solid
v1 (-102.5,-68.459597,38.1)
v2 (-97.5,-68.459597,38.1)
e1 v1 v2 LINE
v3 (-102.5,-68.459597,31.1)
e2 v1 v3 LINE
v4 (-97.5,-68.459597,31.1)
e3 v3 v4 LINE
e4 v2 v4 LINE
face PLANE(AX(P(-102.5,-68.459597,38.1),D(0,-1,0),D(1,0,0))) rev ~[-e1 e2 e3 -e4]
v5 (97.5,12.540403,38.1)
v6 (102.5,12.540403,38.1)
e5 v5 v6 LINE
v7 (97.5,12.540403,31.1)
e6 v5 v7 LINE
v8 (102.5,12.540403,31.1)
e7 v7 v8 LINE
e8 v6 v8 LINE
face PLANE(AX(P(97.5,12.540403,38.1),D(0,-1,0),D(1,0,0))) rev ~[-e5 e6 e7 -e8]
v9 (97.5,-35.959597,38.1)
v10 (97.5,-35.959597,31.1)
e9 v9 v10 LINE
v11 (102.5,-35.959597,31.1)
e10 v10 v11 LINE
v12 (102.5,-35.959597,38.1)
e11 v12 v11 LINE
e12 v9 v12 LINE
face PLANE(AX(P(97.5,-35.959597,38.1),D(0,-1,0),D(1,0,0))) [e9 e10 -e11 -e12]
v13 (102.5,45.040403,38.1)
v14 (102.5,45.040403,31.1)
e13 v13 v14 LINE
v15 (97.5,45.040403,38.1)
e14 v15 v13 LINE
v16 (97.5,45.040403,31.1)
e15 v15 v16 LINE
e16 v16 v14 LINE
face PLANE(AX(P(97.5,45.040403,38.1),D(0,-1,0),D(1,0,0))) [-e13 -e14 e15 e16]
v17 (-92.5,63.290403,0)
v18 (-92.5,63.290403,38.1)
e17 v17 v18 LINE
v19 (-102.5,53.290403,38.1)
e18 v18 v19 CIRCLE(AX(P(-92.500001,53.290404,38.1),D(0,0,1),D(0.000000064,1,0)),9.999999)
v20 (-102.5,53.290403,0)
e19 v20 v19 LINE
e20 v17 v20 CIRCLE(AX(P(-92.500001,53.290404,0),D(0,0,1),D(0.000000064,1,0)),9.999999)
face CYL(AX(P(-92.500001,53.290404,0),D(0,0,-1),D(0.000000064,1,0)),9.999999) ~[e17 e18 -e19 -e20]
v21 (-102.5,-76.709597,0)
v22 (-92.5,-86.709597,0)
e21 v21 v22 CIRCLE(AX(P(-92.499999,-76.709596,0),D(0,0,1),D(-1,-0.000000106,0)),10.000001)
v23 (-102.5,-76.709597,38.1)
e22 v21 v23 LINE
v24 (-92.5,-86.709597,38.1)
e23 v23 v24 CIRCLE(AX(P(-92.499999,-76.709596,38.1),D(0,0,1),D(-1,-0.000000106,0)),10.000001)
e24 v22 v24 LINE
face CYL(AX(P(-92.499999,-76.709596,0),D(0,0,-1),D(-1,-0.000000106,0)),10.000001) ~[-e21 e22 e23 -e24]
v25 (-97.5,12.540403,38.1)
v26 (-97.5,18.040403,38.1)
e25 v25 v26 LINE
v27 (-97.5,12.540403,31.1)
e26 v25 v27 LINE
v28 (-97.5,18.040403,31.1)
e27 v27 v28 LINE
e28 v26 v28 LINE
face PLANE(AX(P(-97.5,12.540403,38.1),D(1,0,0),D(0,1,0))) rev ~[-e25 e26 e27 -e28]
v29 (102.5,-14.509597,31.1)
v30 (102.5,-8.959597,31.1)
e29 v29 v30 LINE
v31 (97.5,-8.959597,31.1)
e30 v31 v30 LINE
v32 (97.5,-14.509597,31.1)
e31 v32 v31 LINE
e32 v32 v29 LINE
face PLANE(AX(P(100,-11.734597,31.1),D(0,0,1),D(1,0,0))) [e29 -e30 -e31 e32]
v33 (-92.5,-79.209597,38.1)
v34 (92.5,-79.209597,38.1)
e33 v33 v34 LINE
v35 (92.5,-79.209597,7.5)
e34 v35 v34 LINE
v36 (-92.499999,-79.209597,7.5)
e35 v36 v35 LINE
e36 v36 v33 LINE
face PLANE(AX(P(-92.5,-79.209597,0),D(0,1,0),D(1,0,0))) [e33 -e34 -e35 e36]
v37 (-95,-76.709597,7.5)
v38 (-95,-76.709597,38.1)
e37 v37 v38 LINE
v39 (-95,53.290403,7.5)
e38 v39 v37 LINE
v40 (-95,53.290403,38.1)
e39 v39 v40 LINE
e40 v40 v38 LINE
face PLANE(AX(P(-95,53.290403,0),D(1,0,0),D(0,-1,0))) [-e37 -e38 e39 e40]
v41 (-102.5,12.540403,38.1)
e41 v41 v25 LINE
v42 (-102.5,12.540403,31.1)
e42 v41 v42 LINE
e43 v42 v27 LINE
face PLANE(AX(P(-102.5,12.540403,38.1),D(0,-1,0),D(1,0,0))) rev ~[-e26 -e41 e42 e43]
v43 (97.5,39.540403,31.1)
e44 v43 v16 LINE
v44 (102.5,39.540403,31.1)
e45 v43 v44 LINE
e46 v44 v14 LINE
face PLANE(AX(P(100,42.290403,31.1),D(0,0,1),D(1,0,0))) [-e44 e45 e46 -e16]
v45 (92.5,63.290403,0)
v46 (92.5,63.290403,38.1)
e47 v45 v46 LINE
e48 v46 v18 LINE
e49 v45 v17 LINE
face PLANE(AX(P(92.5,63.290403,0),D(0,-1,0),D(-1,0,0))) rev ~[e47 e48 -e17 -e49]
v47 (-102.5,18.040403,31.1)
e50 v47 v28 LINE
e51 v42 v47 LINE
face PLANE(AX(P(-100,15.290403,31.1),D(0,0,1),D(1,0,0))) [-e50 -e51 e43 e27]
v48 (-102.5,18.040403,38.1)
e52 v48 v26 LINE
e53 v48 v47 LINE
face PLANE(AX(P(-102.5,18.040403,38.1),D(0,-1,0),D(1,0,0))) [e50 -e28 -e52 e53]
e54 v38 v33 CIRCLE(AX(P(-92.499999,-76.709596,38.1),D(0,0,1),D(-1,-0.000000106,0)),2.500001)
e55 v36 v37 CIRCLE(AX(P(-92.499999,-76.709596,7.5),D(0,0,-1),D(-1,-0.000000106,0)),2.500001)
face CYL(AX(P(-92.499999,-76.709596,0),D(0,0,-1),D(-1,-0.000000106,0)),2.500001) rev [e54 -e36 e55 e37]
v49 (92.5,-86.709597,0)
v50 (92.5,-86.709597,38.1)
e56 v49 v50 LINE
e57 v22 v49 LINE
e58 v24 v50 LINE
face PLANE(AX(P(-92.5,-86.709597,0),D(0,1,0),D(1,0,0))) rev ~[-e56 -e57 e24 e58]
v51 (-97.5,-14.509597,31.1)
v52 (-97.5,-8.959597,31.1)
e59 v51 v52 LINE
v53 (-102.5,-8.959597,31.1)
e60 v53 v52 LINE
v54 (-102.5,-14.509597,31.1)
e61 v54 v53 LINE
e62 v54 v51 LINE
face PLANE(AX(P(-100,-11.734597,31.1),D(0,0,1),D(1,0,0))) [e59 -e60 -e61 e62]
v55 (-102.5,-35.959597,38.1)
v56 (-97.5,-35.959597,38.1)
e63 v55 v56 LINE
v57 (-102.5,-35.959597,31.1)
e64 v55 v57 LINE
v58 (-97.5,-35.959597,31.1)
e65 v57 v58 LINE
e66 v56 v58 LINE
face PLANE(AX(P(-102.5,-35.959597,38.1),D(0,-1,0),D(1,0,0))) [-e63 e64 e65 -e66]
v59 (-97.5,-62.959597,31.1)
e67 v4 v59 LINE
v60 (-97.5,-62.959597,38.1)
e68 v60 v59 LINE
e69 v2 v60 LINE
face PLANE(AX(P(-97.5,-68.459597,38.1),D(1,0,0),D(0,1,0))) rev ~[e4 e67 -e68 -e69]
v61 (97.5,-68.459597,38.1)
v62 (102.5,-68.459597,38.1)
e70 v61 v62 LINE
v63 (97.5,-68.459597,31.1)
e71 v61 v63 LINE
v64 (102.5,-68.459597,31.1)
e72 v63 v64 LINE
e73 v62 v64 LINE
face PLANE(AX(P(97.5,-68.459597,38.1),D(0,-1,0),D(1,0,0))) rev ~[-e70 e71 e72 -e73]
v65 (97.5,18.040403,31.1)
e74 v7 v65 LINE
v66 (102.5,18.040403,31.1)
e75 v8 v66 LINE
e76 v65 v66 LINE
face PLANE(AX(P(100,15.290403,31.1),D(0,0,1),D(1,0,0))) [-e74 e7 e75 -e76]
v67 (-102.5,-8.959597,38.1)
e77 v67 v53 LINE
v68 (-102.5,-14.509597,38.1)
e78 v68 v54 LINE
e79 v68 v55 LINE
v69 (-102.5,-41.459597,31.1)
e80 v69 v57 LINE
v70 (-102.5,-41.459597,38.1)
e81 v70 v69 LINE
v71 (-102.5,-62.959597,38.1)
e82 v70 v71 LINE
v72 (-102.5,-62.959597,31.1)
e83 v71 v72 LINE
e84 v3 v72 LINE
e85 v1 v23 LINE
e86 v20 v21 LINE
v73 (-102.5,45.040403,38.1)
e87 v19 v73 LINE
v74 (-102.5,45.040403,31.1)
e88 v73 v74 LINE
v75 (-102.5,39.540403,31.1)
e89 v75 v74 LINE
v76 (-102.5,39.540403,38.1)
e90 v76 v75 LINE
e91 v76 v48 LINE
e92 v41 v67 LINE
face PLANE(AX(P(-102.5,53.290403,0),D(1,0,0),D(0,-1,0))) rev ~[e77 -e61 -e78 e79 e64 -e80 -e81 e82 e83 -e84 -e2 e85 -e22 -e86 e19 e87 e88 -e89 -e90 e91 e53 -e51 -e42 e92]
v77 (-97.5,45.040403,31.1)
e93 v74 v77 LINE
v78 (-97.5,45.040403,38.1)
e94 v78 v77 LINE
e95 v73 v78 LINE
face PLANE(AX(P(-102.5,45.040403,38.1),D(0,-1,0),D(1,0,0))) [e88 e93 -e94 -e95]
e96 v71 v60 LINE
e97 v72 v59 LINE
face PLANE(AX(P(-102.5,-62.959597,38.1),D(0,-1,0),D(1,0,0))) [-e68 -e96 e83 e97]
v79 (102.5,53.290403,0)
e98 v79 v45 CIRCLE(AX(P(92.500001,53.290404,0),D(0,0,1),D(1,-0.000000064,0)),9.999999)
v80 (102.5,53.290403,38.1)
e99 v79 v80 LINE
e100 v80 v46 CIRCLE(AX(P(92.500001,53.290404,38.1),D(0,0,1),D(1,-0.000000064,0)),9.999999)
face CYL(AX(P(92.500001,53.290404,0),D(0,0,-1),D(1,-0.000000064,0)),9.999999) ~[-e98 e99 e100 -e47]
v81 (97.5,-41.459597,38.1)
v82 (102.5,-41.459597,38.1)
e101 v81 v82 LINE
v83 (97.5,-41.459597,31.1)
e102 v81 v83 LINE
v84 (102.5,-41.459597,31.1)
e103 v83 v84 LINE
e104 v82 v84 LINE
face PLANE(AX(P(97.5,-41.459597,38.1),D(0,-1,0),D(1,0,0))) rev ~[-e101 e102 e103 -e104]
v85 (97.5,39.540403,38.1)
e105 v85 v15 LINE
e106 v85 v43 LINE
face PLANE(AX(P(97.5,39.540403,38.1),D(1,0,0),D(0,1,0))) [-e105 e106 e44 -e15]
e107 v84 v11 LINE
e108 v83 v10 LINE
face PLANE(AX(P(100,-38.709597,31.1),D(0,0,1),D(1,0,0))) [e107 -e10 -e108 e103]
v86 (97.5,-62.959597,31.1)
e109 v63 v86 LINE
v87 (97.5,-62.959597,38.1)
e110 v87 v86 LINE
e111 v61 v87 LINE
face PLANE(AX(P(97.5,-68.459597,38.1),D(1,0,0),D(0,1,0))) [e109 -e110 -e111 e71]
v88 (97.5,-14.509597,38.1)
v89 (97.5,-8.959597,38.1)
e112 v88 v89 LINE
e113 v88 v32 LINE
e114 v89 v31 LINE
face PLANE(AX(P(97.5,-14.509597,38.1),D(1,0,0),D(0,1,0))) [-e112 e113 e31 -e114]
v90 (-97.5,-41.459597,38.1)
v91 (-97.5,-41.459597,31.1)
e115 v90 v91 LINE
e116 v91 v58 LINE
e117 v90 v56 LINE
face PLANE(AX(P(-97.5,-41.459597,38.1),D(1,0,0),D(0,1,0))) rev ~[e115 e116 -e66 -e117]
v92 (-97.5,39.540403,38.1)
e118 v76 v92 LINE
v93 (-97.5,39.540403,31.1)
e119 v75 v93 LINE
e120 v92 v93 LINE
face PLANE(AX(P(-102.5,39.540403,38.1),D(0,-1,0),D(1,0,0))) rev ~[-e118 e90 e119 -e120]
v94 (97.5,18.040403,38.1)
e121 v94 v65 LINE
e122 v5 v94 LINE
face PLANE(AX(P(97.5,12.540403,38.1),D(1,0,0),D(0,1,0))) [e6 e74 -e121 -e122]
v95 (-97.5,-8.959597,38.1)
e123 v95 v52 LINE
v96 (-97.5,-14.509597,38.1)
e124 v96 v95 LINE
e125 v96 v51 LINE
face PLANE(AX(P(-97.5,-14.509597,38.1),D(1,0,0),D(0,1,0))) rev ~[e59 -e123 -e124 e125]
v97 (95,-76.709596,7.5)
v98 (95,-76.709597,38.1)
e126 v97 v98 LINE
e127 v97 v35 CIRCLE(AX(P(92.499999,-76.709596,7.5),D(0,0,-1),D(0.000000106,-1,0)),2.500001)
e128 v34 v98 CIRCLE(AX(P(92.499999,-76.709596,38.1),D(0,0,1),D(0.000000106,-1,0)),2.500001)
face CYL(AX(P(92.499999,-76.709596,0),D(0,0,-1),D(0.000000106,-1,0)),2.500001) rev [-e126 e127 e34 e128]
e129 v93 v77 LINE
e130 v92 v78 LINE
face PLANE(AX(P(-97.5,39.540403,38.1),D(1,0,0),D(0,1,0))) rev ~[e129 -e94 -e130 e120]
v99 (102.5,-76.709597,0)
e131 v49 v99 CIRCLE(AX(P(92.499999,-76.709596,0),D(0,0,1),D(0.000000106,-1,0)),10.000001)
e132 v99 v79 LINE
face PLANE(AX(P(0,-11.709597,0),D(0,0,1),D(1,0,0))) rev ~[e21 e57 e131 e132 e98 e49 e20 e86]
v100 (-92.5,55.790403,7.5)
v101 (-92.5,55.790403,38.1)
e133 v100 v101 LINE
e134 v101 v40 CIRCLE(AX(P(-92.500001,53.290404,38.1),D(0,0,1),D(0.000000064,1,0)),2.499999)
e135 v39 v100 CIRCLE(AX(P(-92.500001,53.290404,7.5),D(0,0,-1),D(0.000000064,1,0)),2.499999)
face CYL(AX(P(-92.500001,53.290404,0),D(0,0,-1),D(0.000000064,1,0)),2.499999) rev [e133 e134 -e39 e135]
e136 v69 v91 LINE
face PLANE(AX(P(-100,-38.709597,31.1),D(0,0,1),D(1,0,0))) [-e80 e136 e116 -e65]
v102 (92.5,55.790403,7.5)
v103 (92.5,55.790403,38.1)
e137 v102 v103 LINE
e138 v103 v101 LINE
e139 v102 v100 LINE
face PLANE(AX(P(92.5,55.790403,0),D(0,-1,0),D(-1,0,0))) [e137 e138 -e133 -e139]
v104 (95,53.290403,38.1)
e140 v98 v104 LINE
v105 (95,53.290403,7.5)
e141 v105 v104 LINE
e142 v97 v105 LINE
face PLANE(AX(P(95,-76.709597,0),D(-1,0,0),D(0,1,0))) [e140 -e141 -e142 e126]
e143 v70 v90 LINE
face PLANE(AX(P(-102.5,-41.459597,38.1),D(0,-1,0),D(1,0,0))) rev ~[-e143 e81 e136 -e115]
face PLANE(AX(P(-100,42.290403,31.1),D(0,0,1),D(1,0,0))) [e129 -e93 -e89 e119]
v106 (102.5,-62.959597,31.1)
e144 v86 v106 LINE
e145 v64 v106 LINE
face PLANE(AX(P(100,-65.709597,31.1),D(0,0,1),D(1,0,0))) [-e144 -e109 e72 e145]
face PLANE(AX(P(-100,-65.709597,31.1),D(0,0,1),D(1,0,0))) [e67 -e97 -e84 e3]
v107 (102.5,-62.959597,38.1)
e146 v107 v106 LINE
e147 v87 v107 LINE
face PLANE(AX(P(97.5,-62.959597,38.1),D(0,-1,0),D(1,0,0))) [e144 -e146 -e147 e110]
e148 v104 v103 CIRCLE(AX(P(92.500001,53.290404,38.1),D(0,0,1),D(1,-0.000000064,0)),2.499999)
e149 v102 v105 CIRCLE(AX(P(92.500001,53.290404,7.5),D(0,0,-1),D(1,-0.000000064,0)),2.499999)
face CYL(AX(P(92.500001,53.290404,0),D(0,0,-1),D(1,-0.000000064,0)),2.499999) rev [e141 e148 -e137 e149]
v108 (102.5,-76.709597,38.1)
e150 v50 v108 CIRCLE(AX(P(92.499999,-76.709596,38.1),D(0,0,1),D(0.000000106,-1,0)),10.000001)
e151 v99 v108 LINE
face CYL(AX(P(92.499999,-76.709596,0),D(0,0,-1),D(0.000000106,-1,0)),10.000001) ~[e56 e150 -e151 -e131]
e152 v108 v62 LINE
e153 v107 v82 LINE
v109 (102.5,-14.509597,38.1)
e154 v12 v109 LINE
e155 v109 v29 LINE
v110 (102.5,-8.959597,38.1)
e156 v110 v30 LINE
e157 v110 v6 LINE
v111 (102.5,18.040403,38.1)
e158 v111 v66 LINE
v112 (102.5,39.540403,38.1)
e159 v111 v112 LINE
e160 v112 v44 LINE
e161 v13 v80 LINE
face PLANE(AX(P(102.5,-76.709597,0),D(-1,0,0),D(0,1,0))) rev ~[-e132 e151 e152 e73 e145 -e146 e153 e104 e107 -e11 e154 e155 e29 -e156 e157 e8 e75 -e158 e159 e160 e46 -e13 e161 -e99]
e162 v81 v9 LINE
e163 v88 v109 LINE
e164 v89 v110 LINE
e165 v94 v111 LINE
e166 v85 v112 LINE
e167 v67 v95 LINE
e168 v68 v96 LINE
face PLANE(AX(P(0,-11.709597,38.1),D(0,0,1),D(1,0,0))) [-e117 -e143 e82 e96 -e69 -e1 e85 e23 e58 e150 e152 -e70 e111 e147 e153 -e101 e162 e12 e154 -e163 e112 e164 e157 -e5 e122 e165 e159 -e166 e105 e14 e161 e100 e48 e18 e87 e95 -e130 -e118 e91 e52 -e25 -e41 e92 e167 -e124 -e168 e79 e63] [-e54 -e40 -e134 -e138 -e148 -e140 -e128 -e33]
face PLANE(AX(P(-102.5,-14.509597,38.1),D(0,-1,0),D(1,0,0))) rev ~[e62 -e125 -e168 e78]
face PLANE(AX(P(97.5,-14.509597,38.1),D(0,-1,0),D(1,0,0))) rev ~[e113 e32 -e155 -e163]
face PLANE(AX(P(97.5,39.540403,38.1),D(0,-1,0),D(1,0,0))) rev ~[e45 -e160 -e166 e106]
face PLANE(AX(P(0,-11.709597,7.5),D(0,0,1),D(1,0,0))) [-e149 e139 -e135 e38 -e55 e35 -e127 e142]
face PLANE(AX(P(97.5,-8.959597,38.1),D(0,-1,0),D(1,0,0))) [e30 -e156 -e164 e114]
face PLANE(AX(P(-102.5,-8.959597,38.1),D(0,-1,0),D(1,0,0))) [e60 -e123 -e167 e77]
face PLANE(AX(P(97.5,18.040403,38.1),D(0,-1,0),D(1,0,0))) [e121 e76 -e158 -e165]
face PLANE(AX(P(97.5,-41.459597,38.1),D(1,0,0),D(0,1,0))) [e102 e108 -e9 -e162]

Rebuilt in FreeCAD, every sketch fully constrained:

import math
import FreeCAD as App
import Part
import Sketcher

V = App.Vector


def faces_at(feature, points):
    """Names of the faces that lie closest to the given points."""
    faces = feature.Shape.Faces
    near = lambda p: min(range(len(faces)), key=lambda i: faces[i].distToShape(Part.Vertex(*p))[0])
    return sorted({f"Face{near(p) + 1}" for p in points})


def add_polygon(sketch, points):
    """Adds a closed chain of lines whose ends are joined by coincident constraints."""
    first, n = sketch.GeometryCount, len(points)
    for a, b in zip(points, points[1:] + points[:1]):
        sketch.addGeometry(Part.LineSegment(App.Vector(*a, 0), App.Vector(*b, 0)), False)
    for i in range(n):
        sketch.addConstraint(Sketcher.Constraint("Coincident", first + i, 2, first + (i + 1) % n, 1))

doc = App.newDocument("Part")
body = doc.addObject("PartDesign::Body", "Body")

sketch1 = body.newObject("Sketcher::SketchObject", "Sketch")
sketch1.AttachmentSupport = (doc.getObject("XY_Plane"), [""])
sketch1.MapMode = "FlatFace"
sketch1.addGeometry([
    Part.LineSegment(V(92, 63, 0), V(-92, 63, 0)),
    Part.ArcOfCircle(Part.Circle(V(-93, 53, 0), V(0, 0, 1), 10), math.radians(90), math.radians(180)),
    Part.LineSegment(V(-102, 53, 0), V(-102, -77, 0)),
    Part.ArcOfCircle(Part.Circle(V(-92, -77, 0), V(0, 0, 1), 10), math.radians(-180), math.radians(-90)),
    Part.LineSegment(V(-92, -87, 0), V(92, -87, 0)),
    Part.ArcOfCircle(Part.Circle(V(92, -77, 0), V(0, 0, 1), 10), math.radians(-90), math.radians(0)),
    Part.LineSegment(V(102, -77, 0), V(102, 53, 0)),
    Part.ArcOfCircle(Part.Circle(V(93, 53, 0), V(0, 0, 1), 10), math.radians(0), math.radians(90)),
], False)
sketch1.addConstraint([
    Sketcher.Constraint("Tangent", 0, 2, 1, 1),
    Sketcher.Constraint("Tangent", 1, 2, 2, 1),
    Sketcher.Constraint("Tangent", 2, 2, 3, 1),
    Sketcher.Constraint("Tangent", 3, 2, 4, 1),
    Sketcher.Constraint("Tangent", 4, 2, 5, 1),
    Sketcher.Constraint("Tangent", 5, 2, 6, 1),
    Sketcher.Constraint("Tangent", 6, 2, 7, 1),
    Sketcher.Constraint("Tangent", 7, 2, 0, 1),
    Sketcher.Constraint("Horizontal", 0),
    Sketcher.Constraint("Vertical", 2),
    Sketcher.Constraint("Horizontal", 4),
    Sketcher.Constraint("Vertical", 6),
    Sketcher.Constraint("Equal", 1, 3),
    Sketcher.Constraint("Equal", 3, 5),
    Sketcher.Constraint("Equal", 5, 7),
    Sketcher.Constraint("Radius", 1, 9.999999),
    Sketcher.Constraint("DistanceX", 0, 2, 0, 1, 185.0),
    Sketcher.Constraint("DistanceY", 2, 2, 2, 1, 130.0),
    Sketcher.Constraint("DistanceX", 1, 3, -1, 1, 92.500001),
    Sketcher.Constraint("DistanceY", -1, 1, 1, 3, 53.290404),
])
pad1 = body.newObject("PartDesign::Pad", "Pad")
pad1.Profile = sketch1
pad1.Length = 38.1
doc.recompute()

thickness = body.newObject("PartDesign::Thickness", "Thickness")
thickness.Base = (pad1, faces_at(pad1, [(0, -11.71, 38.1)]))
thickness.Value = 7.5
thickness.Reversed = True
thickness.Join = "Arc"

sketch2 = body.newObject("Sketcher::SketchObject", "Sketch001")
sketch2.AttachmentSupport = (doc.getObject("XY_Plane"), [""])
sketch2.MapMode = "FlatFace"
sketch2.AttachmentOffset = App.Placement(V(0, 0, 38.1), App.Rotation())
add_polygon(sketch2, [(-102, 45), (-102, 40), (-98, 40), (-98, 45)])
add_polygon(sketch2, [(-102, 18), (-102, 13), (-98, 13), (-98, 18)])
add_polygon(sketch2, [(-102, -9), (-102, -15), (-98, -15), (-98, -9)])
add_polygon(sketch2, [(-102, -36), (-102, -41), (-98, -41), (-98, -36)])
add_polygon(sketch2, [(-102, -63), (-102, -68), (-98, -68), (-98, -63)])
add_polygon(sketch2, [(98, -63), (98, -68), (102, -68), (102, -63)])
add_polygon(sketch2, [(98, -36), (98, -41), (102, -41), (102, -36)])
add_polygon(sketch2, [(98, -9), (98, -15), (102, -15), (102, -9)])
add_polygon(sketch2, [(98, 18), (98, 13), (102, 13), (102, 18)])
add_polygon(sketch2, [(98, 45), (98, 40), (102, 40), (102, 45)])
sketch2.addConstraint([
    Sketcher.Constraint("Vertical", 0),
    Sketcher.Constraint("Horizontal", 1),
    Sketcher.Constraint("Vertical", 2),
    Sketcher.Constraint("Horizontal", 3),
    Sketcher.Constraint("Vertical", 4),
    Sketcher.Constraint("Horizontal", 5),
    Sketcher.Constraint("Vertical", 6),
    Sketcher.Constraint("Horizontal", 7),
    Sketcher.Constraint("Vertical", 8),
    Sketcher.Constraint("Horizontal", 9),
    Sketcher.Constraint("Vertical", 10),
    Sketcher.Constraint("Horizontal", 11),
    Sketcher.Constraint("Vertical", 12),
    Sketcher.Constraint("Horizontal", 13),
    Sketcher.Constraint("Vertical", 14),
    Sketcher.Constraint("Horizontal", 15),
    Sketcher.Constraint("Vertical", 16),
    Sketcher.Constraint("Horizontal", 17),
    Sketcher.Constraint("Vertical", 18),
    Sketcher.Constraint("Horizontal", 19),
    Sketcher.Constraint("Vertical", 20),
    Sketcher.Constraint("Horizontal", 21),
    Sketcher.Constraint("Vertical", 22),
    Sketcher.Constraint("Horizontal", 23),
    Sketcher.Constraint("Vertical", 24),
    Sketcher.Constraint("Horizontal", 25),
    Sketcher.Constraint("Vertical", 26),
    Sketcher.Constraint("Horizontal", 27),
    Sketcher.Constraint("Vertical", 28),
    Sketcher.Constraint("Horizontal", 29),
    Sketcher.Constraint("Vertical", 30),
    Sketcher.Constraint("Horizontal", 31),
    Sketcher.Constraint("Vertical", 32),
    Sketcher.Constraint("Horizontal", 33),
    Sketcher.Constraint("Vertical", 34),
    Sketcher.Constraint("Horizontal", 35),
    Sketcher.Constraint("Vertical", 36),
    Sketcher.Constraint("Horizontal", 37),
    Sketcher.Constraint("Vertical", 38),
    Sketcher.Constraint("Horizontal", 39),
    Sketcher.Constraint("Symmetric", 17, 2, 20, 2, -2),
    Sketcher.Constraint("Symmetric", 19, 2, 22, 2, -2),
    Sketcher.Constraint("Symmetric", 13, 2, 24, 2, -2),
    Sketcher.Constraint("Symmetric", 15, 2, 26, 2, -2),
    Sketcher.Constraint("Symmetric", 9, 2, 28, 2, -2),
    Sketcher.Constraint("Symmetric", 11, 2, 30, 2, -2),
    Sketcher.Constraint("Symmetric", 5, 2, 32, 2, -2),
    Sketcher.Constraint("Symmetric", 7, 2, 34, 2, -2),
    Sketcher.Constraint("Symmetric", 1, 2, 36, 2, -2),
    Sketcher.Constraint("Symmetric", 3, 2, 38, 2, -2),
    Sketcher.Constraint("Vertical", 3, 2, 4, 2),
    Sketcher.Constraint("Vertical", 2, 2, 5, 2),
    Sketcher.Constraint("Vertical", 7, 2, 8, 2),
    Sketcher.Constraint("Vertical", 6, 2, 9, 2),
    Sketcher.Constraint("Vertical", 11, 2, 12, 2),
    Sketcher.Constraint("Vertical", 10, 2, 13, 2),
    Sketcher.Constraint("Vertical", 15, 2, 16, 2),
    Sketcher.Constraint("Vertical", 14, 2, 17, 2),
    Sketcher.Constraint("Equal", 2, 4),
    Sketcher.Constraint("Equal", 6, 12),
    Sketcher.Constraint("Equal", 14, 16),
    Sketcher.Constraint("DistanceX", 1, 1, 1, 2, 5.0),
    Sketcher.Constraint("DistanceY", 0, 2, 0, 1, 5.5),
    Sketcher.Constraint("DistanceY", 4, 2, 0, 2, 27.0),
    Sketcher.Constraint("DistanceY", 10, 2, 6, 2, 27.0),
    Sketcher.Constraint("DistanceY", 12, 2, 4, 2, 54.0),
    Sketcher.Constraint("DistanceY", 16, 2, 12, 2, 27.0),
    Sketcher.Constraint("DistanceX", 17, 2, 20, 2, 195.0),
    Sketcher.Constraint("DistanceY", 8, 2, 8, 1, 5.55),
    Sketcher.Constraint("DistanceY", -1, 1, 0, 2, 39.540403),
])
pocket1 = body.newObject("PartDesign::Pocket", "Pocket")
pocket1.Profile = sketch2
pocket1.Length = 7

doc.recompute()
